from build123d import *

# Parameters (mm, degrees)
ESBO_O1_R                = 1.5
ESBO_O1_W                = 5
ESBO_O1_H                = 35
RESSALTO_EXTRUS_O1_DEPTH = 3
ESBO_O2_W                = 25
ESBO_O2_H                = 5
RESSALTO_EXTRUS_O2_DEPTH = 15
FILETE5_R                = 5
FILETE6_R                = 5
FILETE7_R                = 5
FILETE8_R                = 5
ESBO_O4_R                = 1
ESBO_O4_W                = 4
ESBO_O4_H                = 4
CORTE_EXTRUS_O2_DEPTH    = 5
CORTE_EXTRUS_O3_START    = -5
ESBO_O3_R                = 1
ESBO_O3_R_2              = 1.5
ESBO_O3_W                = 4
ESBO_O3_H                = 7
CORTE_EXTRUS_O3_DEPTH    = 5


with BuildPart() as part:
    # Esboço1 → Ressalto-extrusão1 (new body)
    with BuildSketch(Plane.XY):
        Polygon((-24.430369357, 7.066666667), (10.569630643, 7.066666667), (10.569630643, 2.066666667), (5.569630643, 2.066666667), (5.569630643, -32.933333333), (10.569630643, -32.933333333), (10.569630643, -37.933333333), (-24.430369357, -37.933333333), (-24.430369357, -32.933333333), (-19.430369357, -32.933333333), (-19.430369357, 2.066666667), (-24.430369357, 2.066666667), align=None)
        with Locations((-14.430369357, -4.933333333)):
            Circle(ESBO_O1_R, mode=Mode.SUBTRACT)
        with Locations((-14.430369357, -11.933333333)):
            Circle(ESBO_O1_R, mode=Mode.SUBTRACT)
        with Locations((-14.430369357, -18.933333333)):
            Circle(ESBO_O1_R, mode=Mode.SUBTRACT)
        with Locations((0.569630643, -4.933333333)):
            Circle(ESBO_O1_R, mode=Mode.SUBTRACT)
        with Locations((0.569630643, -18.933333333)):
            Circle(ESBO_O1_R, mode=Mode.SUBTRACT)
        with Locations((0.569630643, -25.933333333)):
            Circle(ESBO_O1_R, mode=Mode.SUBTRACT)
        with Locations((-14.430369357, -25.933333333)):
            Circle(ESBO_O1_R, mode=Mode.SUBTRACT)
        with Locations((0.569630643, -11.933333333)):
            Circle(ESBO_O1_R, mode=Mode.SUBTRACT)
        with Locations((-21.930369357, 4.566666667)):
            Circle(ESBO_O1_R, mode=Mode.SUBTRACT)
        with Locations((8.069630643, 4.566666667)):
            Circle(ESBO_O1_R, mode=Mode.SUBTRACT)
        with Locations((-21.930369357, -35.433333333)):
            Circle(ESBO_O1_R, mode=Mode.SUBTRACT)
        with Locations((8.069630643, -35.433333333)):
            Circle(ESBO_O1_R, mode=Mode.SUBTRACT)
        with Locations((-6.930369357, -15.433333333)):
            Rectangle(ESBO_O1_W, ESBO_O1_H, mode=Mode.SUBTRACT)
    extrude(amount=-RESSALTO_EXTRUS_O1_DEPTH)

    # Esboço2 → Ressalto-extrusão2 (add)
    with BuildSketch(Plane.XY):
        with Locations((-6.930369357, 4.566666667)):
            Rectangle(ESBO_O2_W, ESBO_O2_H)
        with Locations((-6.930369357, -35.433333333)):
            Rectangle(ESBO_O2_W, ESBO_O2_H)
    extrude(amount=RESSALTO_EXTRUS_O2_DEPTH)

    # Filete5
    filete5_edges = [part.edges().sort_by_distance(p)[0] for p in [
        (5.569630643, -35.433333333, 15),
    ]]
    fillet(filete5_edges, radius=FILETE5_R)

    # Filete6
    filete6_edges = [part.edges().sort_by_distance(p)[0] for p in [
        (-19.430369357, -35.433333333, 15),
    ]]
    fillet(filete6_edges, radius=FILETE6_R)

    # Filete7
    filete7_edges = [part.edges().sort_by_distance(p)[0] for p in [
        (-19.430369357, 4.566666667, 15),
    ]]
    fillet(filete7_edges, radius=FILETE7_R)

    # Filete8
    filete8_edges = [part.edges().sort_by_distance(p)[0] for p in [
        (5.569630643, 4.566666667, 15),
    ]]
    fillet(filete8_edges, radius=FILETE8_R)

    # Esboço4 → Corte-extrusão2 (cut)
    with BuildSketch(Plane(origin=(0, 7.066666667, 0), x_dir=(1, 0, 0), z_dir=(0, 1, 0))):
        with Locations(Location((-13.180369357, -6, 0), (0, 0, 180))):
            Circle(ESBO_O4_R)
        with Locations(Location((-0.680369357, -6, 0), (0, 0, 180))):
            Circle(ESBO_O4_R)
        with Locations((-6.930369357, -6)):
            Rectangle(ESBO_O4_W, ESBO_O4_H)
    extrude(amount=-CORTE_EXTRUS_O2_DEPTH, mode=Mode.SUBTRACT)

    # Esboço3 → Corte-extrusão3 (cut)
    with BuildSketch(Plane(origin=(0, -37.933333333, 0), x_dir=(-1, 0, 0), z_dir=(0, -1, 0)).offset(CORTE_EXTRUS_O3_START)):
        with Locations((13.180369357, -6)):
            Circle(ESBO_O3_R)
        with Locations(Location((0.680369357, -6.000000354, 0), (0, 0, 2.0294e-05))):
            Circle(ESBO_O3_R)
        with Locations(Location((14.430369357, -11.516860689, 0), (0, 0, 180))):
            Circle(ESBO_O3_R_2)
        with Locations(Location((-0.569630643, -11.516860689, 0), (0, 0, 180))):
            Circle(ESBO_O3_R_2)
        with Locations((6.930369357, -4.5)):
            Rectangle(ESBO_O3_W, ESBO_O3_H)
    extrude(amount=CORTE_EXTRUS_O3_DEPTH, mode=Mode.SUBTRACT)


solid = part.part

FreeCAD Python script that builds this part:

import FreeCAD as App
import Part
import Sketcher
from FreeCAD import Vector


def edges_at(feature, points):
    """Names of the edges that pass closest to the given points."""
    edges = feature.Shape.Edges
    near = lambda p: min(range(len(edges)), key=lambda i: edges[i].distToShape(Part.Vertex(*p))[0])
    return sorted({f"Edge{near(p) + 1}" for p in points})


def add_polygon(sketch, points):
    """Adds a closed chain of lines whose ends are joined by coincident constraints."""
    first, n = sketch.GeometryCount, len(points)
    for a, b in zip(points, points[1:] + points[:1]):
        sketch.addGeometry(Part.LineSegment(App.Vector(*a, 0), App.Vector(*b, 0)), False)
    for i in range(n):
        sketch.addConstraint(Sketcher.Constraint("Coincident", first + i, 2, first + (i + 1) % n, 1))

doc = App.newDocument("Part")
body = doc.addObject("PartDesign::Body", "Body")

# Sketch on XY plane
sketch1 = doc.addObject("Sketcher::SketchObject", "Sketch")
body.addObject(sketch1)
sketch1.AttachmentSupport = (doc.XY_Plane, [""])
sketch1.MapMode = "FlatFace"
add_polygon(sketch1, [(10.6, 7.1), (-24.4, 7.1), (-24.4, 2.1), (-19.4, 2.1), (-19.4, -32.9), (-24.4, -32.9), (-24.4, -37.9), (10.6, -37.9), (10.6, -32.9), (5.6, -32.9), (5.6, 2.1), (10.6, 2.1)])  # lines 0-11
sketch1.addGeometry(Part.Circle(Vector(8.1, -35.4, 0), Vector(0, 0, 1), 1.5), False)  # 12
sketch1.addGeometry(Part.Circle(Vector(0.6, -25.9, 0), Vector(0, 0, 1), 1.5), False)  # 13
sketch1.addGeometry(Part.Circle(Vector(0.6, -18.9, 0), Vector(0, 0, 1), 1.5), False)  # 14
sketch1.addGeometry(Part.Circle(Vector(-21.9, -35.4, 0), Vector(0, 0, 1), 1.5), False)  # 15
sketch1.addGeometry(Part.Circle(Vector(-14.4, -25.9, 0), Vector(0, 0, 1), 1.5), False)  # 16
sketch1.addGeometry(Part.Circle(Vector(-14.4, -18.9, 0), Vector(0, 0, 1), 1.5), False)  # 17
sketch1.addGeometry(Part.Circle(Vector(0.6, -11.9, 0), Vector(0, 0, 1), 1.5), False)  # 18
sketch1.addGeometry(Part.Circle(Vector(0.6, -4.9, 0), Vector(0, 0, 1), 1.5), False)  # 19
sketch1.addGeometry(Part.Circle(Vector(8.1, 4.6, 0), Vector(0, 0, 1), 1.5), False)  # 20
add_polygon(sketch1, [(-9.4, -32.9), (-9.4, 2.1), (-4.4, 2.1), (-4.4, -32.9)])  # lines 21-24
sketch1.addGeometry(Part.Circle(Vector(-14.4, -11.9, 0), Vector(0, 0, 1), 1.5), False)  # 25
sketch1.addGeometry(Part.Circle(Vector(-14.4, -4.9, 0), Vector(0, 0, 1), 1.5), False)  # 26
sketch1.addGeometry(Part.Circle(Vector(-21.9, 4.6, 0), Vector(0, 0, 1), 1.5), False)  # 27
sketch1.addConstraint([
    Sketcher.Constraint("Horizontal", 0),
    Sketcher.Constraint("Vertical", 1),
    Sketcher.Constraint("Horizontal", 2),
    Sketcher.Constraint("Vertical", 3),
    Sketcher.Constraint("Horizontal", 4),
    Sketcher.Constraint("Vertical", 5),
    Sketcher.Constraint("Horizontal", 6),
    Sketcher.Constraint("Vertical", 7),
    Sketcher.Constraint("Horizontal", 8),
    Sketcher.Constraint("Vertical", 9),
    Sketcher.Constraint("Horizontal", 10),
    Sketcher.Constraint("Vertical", 11),
    Sketcher.Constraint("Vertical", 21),
    Sketcher.Constraint("Horizontal", 22),
    Sketcher.Constraint("Vertical", 23),
    Sketcher.Constraint("Horizontal", 24),
    Sketcher.Constraint("Equal", 12, 13),
    Sketcher.Constraint("Equal", 13, 14),
    Sketcher.Constraint("Equal", 14, 15),
    Sketcher.Constraint("Equal", 15, 16),
    Sketcher.Constraint("Equal", 16, 17),
    Sketcher.Constraint("Equal", 17, 18),
    Sketcher.Constraint("Equal", 18, 19),
    Sketcher.Constraint("Equal", 19, 20),
    Sketcher.Constraint("Equal", 20, 25),
    Sketcher.Constraint("Equal", 25, 26),
    Sketcher.Constraint("Equal", 26, 27),
    Sketcher.Constraint("Horizontal", 12, 3, 15, 3),
    Sketcher.Constraint("Horizontal", 13, 3, 16, 3),
    Sketcher.Constraint("Horizontal", 14, 3, 17, 3),
    Sketcher.Constraint("Horizontal", 18, 3, 25, 3),
    Sketcher.Constraint("Horizontal", 19, 3, 26, 3),
    Sketcher.Constraint("Horizontal", 20, 3, 27, 3),
    Sketcher.Constraint("Horizontal", 4, 2, 7, 2),
    Sketcher.Constraint("Horizontal", 2, 2, 9, 2),
    Sketcher.Constraint("Horizontal", 10, 2, 21, 2),
    Sketcher.Constraint("Horizontal", 8, 2, 23, 2),
    Sketcher.Constraint("Vertical", 13, 3, 14, 3),
    Sketcher.Constraint("Vertical", 16, 3, 17, 3),
    Sketcher.Constraint("Vertical", 14, 3, 18, 3),
    Sketcher.Constraint("Vertical", 18, 3, 19, 3),
    Sketcher.Constraint("Vertical", 12, 3, 20, 3),
    Sketcher.Constraint("Vertical", 17, 3, 25, 3),
    Sketcher.Constraint("Vertical", 25, 3, 26, 3),
    Sketcher.Constraint("Vertical", 15, 3, 27, 3),
    Sketcher.Constraint("Vertical", 1, 2, 4, 2),
    Sketcher.Constraint("Vertical", 7, 2, 10, 2),
    Sketcher.Constraint("Equal", 4, 8),
    Sketcher.Constraint("Equal", 10, 22),
    Sketcher.Constraint("Equal", 24, 1),
    Sketcher.Constraint("Equal", 6, 3),
    Sketcher.Constraint("Equal", 1, 5),
    Sketcher.Constraint("Diameter", 12, 3.0),
    Sketcher.Constraint("DistanceX", 0, 2, 0, 1, 35.0),
    Sketcher.Constraint("DistanceX", 2, 1, 2, 2, 5.0),
    Sketcher.Constraint("DistanceY", 13, 3, 14, 3, 7.0),
    Sketcher.Constraint("DistanceX", 15, 3, 12, 3, 30.0),
    Sketcher.Constraint("DistanceX", 16, 3, 13, 3, 15.0),
    Sketcher.Constraint("DistanceY", 14, 3, 18, 3, 7.0),
    Sketcher.Constraint("DistanceY", 18, 3, 19, 3, 7.0),
    Sketcher.Constraint("DistanceX", 0, 2, 26, 3, 10.0),
    Sketcher.Constraint("DistanceY", 26, 3, 0, 2, 12.0),
    Sketcher.Constraint("DistanceX", 26, 3, 21, 2, 5.0),
    Sketcher.Constraint("DistanceX", 13, 3, 12, 3, 7.5),
    Sketcher.Constraint("DistanceY", 12, 3, 13, 3, 9.5),
    Sketcher.Constraint("DistanceY", 19, 3, 20, 3, 9.5),
    Sketcher.Constraint("DistanceX", -1, 1, 12, 3, 8.069631),
    Sketcher.Constraint("DistanceY", 12, 3, -1, 1, 35.433333),
])
pad1 = doc.addObject("PartDesign::Pad", "Pad")
body.addObject(pad1)
pad1.Profile = sketch1
pad1.Length = 3
pad1.Reversed = True

# Sketch on XY plane
sketch2 = doc.addObject("Sketcher::SketchObject", "Sketch001")
body.addObject(sketch2)
sketch2.AttachmentSupport = (doc.XY_Plane, [""])
sketch2.MapMode = "FlatFace"
add_polygon(sketch2, [(-19, 7), (-19, 2), (6, 2), (6, 7)])  # lines 0-3
add_polygon(sketch2, [(-19, -33), (-19, -38), (6, -38), (6, -33)])  # lines 4-7
sketch2.addConstraint([
    Sketcher.Constraint("Vertical", 0),
    Sketcher.Constraint("Horizontal", 1),
    Sketcher.Constraint("Vertical", 2),
    Sketcher.Constraint("Horizontal", 3),
    Sketcher.Constraint("Vertical", 4),
    Sketcher.Constraint("Horizontal", 5),
    Sketcher.Constraint("Vertical", 6),
    Sketcher.Constraint("Horizontal", 7),
    Sketcher.Constraint("Vertical", 3, 2, 4, 2),
    Sketcher.Constraint("Vertical", 2, 2, 5, 2),
    Sketcher.Constraint("Equal", 2, 4),
    Sketcher.Constraint("DistanceX", 1, 1, 1, 2, 25.0),
    Sketcher.Constraint("DistanceY", 0, 2, 0, 1, 5.0),
    Sketcher.Constraint("DistanceY", 4, 2, 0, 2, 40.0),
    Sketcher.Constraint("DistanceX", 0, 2, -1, 1, 19.430369),
    Sketcher.Constraint("DistanceY", -1, 1, 0, 2, 2.066667),
])
pad2 = doc.addObject("PartDesign::Pad", "Pad001")
body.addObject(pad2)
pad2.Profile = sketch2
pad2.Length = 15
doc.recompute()

fillet = doc.addObject("PartDesign::Fillet", "Fillet")
body.addObject(fillet)
fillet.Base = (pad2, edges_at(pad2, [(5.57, -35.433, 15)]))
fillet.Radius = 5
doc.recompute()

fillet2 = doc.addObject("PartDesign::Fillet", "Fillet001")
body.addObject(fillet2)
fillet2.Base = (fillet, edges_at(fillet, [(-19.43, -35.433, 15)]))
fillet2.Radius = 5
doc.recompute()

fillet3 = doc.addObject("PartDesign::Fillet", "Fillet002")
body.addObject(fillet3)
fillet3.Base = (fillet2, edges_at(fillet2, [(-19.43, 4.567, 15)]))
fillet3.Radius = 5
doc.recompute()

fillet4 = doc.addObject("PartDesign::Fillet", "Fillet003")
body.addObject(fillet4)
fillet4.Base = (fillet3, edges_at(fillet3, [(5.57, 4.567, 15)]))
fillet4.Radius = 5

# Sketch on XZ plane
sketch3 = doc.addObject("Sketcher::SketchObject", "Sketch002")
body.addObject(sketch3)
sketch3.AttachmentSupport = (doc.XZ_Plane, [""])
sketch3.MapMode = "FlatFace"
sketch3.AttachmentOffset = App.Placement(Vector(0, 0, -7.066667), App.Rotation())
sketch3.addGeometry(Part.Circle(Vector(-13.2, 6, 0), Vector(0, 0, 1), 1), False)  # 0
sketch3.addGeometry(Part.Circle(Vector(-0.7, 6, 0), Vector(0, 0, 1), 1), False)  # 1
add_polygon(sketch3, [(-8.9, 4), (-8.9, 8), (-4.9, 8), (-4.9, 4)])  # lines 2-5
sketch3.addConstraint([
    Sketcher.Constraint("Vertical", 2),
    Sketcher.Constraint("Horizontal", 3),
    Sketcher.Constraint("Vertical", 4),
    Sketcher.Constraint("Horizontal", 5),
    Sketcher.Constraint("Equal", 0, 1),
    Sketcher.Constraint("Horizontal", 0, 3, 1, 3),
    Sketcher.Constraint("Equal", 5, 2),
    Sketcher.Constraint("Diameter", 0, 2.0),
    Sketcher.Constraint("DistanceX", 3, 1, 3, 2, 4.0),
    Sketcher.Constraint("DistanceY", -1, 1, 0, 3, 6.0),
    Sketcher.Constraint("DistanceY", -1, 1, 2, 2, 8.0),
    Sketcher.Constraint("DistanceX", 0, 3, 1, 3, 12.5),
    Sketcher.Constraint("DistanceX", 0, 3, 2, 2, 4.25),
    Sketcher.Constraint("DistanceX", 0, 3, -1, 1, 13.180369),
])
pocket1 = doc.addObject("PartDesign::Pocket", "Pocket")
body.addObject(pocket1)
pocket1.Profile = sketch3
pocket1.Length = 5
pocket1.Reversed = True

# Sketch on XZ plane
sketch4 = doc.addObject("Sketcher::SketchObject", "Sketch003")
body.addObject(sketch4)
sketch4.AttachmentSupport = (doc.XZ_Plane, [""])
sketch4.MapMode = "FlatFace"
sketch4.AttachmentOffset = App.Placement(Vector(0, 0, 32.933333), App.Rotation())
sketch4.addGeometry(Part.Circle(Vector(-13.2, 6, 0), Vector(0, 0, 1), 1), False)  # 0
sketch4.addGeometry(Part.Circle(Vector(-0.7, 6, 0), Vector(0, 0, 1), 1), False)  # 1
sketch4.addGeometry(Part.Circle(Vector(-14.4, 11.5, 0), Vector(0, 0, 1), 1.5), False)  # 2
sketch4.addGeometry(Part.Circle(Vector(0.6, 11.5, 0), Vector(0, 0, 1), 1.5), False)  # 3
add_polygon(sketch4, [(-4.9, 1), (-4.9, 8), (-8.9, 8), (-8.9, 1)])  # lines 4-7
sketch4.addConstraint([
    Sketcher.Constraint("Vertical", 4),
    Sketcher.Constraint("Horizontal", 5),
    Sketcher.Constraint("Vertical", 6),
    Sketcher.Constraint("Horizontal", 7),
    Sketcher.Constraint("Equal", 0, 1),
    Sketcher.Constraint("Equal", 2, 3),
    Sketcher.Constraint("Horizontal", 0, 3, 1, 3),
    Sketcher.Constraint("Horizontal", 2, 3, 3, 3),
    Sketcher.Constraint("Diameter", 0, 2.0),
    Sketcher.Constraint("Diameter", 2, 3.0),
    Sketcher.Constraint("DistanceX", 5, 2, 5, 1, 4.0),
    Sketcher.Constraint("DistanceY", 4, 1, 4, 2, 7.0),
    Sketcher.Constraint("DistanceY", -1, 1, 0, 3, 6.0),
    Sketcher.Constraint("DistanceY", -1, 1, 4, 2, 8.0),
    Sketcher.Constraint("DistanceX", 2, 3, 3, 3, 15.0),
    Sketcher.Constraint("DistanceX", 0, 3, 1, 3, 12.5),
    Sketcher.Constraint("DistanceX", 4, 2, 3, 3, 5.5),
    Sketcher.Constraint("DistanceX", 2, 3, 0, 3, 1.25),
    Sketcher.Constraint("DistanceX", 0, 3, -1, 1, 13.180369),
    Sketcher.Constraint("DistanceY", -1, 1, 2, 3, 11.516861),
])
pocket2 = doc.addObject("PartDesign::Pocket", "Pocket001")
body.addObject(pocket2)
pocket2.Profile = sketch4
pocket2.Length = 5
pocket2.Reversed = True

doc.recompute()
